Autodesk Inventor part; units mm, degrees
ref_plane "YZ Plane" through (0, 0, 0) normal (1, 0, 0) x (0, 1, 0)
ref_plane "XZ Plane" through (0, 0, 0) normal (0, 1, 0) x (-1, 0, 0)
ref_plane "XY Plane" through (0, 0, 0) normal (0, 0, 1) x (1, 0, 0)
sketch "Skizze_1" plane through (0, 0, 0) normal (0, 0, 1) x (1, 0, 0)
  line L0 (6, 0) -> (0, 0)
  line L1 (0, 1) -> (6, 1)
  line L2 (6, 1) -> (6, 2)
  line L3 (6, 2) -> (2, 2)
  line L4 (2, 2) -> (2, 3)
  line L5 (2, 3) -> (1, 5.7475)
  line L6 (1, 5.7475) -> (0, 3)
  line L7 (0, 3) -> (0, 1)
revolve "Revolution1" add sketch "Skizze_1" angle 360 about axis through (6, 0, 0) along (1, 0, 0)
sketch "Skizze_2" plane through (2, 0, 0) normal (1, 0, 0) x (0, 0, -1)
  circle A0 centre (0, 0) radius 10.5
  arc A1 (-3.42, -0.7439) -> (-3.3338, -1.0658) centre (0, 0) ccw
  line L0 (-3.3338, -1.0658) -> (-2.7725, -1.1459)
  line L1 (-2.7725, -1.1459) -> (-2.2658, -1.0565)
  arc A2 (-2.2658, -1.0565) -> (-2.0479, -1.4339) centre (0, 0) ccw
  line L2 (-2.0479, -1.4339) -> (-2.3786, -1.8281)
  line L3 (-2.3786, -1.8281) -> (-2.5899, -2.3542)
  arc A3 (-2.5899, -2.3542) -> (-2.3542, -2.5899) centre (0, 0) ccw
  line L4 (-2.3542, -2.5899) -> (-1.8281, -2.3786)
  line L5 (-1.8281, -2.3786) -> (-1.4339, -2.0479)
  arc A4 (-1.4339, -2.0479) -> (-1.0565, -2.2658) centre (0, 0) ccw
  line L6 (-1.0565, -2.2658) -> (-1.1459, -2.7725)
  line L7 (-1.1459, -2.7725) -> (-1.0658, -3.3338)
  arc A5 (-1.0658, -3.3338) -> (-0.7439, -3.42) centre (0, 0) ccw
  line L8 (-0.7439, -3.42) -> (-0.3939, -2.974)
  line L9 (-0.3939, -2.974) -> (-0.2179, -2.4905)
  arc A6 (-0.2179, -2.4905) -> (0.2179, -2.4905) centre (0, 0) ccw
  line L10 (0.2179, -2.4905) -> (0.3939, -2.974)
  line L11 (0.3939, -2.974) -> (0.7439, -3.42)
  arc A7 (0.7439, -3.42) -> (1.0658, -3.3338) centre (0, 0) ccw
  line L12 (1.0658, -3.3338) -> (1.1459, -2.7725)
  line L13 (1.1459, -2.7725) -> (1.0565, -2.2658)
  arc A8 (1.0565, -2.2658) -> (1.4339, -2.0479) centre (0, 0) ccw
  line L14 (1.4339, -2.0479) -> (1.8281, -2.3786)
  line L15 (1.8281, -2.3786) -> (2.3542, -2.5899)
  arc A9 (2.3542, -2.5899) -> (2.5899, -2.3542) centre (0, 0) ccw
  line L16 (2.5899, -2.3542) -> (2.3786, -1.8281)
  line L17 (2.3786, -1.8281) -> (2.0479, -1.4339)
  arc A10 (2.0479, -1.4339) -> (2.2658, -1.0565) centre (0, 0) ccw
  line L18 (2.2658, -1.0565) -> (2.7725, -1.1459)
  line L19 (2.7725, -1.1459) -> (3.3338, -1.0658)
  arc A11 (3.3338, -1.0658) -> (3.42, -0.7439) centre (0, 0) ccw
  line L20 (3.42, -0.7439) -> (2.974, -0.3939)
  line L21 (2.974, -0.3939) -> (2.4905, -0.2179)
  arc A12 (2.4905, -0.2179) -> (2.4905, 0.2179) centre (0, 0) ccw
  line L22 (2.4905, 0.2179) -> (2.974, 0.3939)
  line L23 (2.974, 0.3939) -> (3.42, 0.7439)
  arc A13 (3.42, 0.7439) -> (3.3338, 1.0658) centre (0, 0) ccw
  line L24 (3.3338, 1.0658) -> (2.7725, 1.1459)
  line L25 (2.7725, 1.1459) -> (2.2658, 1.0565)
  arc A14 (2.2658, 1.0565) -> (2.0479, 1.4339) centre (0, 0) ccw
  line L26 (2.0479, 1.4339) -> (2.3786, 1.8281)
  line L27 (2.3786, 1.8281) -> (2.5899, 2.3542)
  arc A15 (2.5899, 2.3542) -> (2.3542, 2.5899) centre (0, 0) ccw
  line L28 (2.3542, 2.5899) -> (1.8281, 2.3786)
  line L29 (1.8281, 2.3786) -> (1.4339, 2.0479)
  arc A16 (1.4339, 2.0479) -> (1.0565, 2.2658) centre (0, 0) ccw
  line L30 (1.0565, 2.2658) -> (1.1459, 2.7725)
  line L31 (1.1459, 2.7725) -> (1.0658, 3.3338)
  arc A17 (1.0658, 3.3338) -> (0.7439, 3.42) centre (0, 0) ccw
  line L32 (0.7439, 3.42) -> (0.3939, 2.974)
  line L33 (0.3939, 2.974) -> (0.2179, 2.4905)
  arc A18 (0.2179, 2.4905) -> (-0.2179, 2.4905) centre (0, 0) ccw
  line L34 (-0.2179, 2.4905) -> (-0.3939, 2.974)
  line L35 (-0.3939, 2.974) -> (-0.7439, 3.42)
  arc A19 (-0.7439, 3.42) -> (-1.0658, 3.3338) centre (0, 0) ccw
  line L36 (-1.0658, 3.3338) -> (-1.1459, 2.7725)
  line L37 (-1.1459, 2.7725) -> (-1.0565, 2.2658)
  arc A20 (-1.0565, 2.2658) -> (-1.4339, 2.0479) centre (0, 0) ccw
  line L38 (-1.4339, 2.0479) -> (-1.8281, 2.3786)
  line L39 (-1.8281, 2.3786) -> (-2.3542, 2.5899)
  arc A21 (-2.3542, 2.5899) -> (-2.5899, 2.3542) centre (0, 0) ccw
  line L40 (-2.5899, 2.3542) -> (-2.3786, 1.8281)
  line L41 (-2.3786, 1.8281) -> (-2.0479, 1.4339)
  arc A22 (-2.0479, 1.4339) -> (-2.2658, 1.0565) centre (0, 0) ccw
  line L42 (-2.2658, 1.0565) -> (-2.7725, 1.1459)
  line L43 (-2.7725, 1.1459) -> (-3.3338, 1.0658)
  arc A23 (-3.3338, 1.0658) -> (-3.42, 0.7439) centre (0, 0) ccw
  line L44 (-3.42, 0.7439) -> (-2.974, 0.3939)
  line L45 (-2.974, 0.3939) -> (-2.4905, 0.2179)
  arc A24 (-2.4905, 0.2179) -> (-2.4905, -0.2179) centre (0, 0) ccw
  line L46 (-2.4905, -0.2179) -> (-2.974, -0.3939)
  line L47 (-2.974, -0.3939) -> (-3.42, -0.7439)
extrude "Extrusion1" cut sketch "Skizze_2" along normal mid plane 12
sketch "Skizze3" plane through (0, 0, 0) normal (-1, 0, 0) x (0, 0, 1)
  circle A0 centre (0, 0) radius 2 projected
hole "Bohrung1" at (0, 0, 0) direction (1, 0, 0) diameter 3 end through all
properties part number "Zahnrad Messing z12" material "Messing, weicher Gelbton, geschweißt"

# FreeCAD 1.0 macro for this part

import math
import FreeCAD as App
import Part
import Sketcher
Q = App.Units.Quantity


def add_polygon(sketch, points):
    """Adds a closed chain of lines whose ends are joined by coincident constraints."""
    first, n = sketch.GeometryCount, len(points)
    for a, b in zip(points, points[1:] + points[:1]):
        sketch.addGeometry(Part.LineSegment(App.Vector(*a, 0), App.Vector(*b, 0)), False)
    for i in range(n):
        sketch.addConstraint(Sketcher.Constraint("Coincident", first + i, 2, first + (i + 1) % n, 1))

doc = App.newDocument("Part")
body = doc.addObject("PartDesign::Body", "Body")

# Sketch on XY plane
sketch1 = body.newObject("Sketcher::SketchObject", "Sketch")
sketch1.AttachmentSupport = (doc.getObject("XY_Plane"), [""])
sketch1.MapMode = "FlatFace"
add_polygon(sketch1, [(0, 3), (0, 1), (6, 1), (6, 2), (2, 2), (2, 3), (1, 5.7)])  # lines 0-6
sketch1.addConstraint([
    Sketcher.Constraint("Vertical", 0),
    Sketcher.Constraint("Horizontal", 1),
    Sketcher.Constraint("Vertical", 2),
    Sketcher.Constraint("Horizontal", 3),
    Sketcher.Constraint("Vertical", 4),
    Sketcher.Constraint("PointOnObject", 0, 2, -2),
    Sketcher.Constraint("Horizontal", 4, 2, 6, 2),
    Sketcher.Constraint("Equal", 2, 4),
    Sketcher.Constraint("Equal", 5, 6),
    Sketcher.Constraint("DistanceX", 1, 1, 1, 2, Q("6 mm")),
    Sketcher.Constraint("DistanceX", 3, 2, 3, 1, Q("4 mm")),
    Sketcher.Constraint("DistanceY", 0, 2, 0, 1, Q("2 mm")),
    Sketcher.Constraint("Angle", 5, Q("109.9998 deg")),
    Sketcher.Constraint("DistanceY", -1, 1, 0, 2, Q("1 mm")),
])
revolution = body.newObject("PartDesign::Revolution", "Revolution")
revolution.Profile = sketch1
revolution.ReferenceAxis = (sketch1, ["H_Axis"])
revolution.Angle = 360

# Sketch on YZ plane
sketch2 = body.newObject("Sketcher::SketchObject", "Sketch001")
sketch2.AttachmentSupport = (doc.getObject("YZ_Plane"), [""])
sketch2.MapMode = "FlatFace"
sketch2.AttachmentOffset = App.Placement(App.Vector(0, 0, 2), App.Rotation())
sketch2.addGeometry([
    Part.Circle(App.Vector(0, 0, 0), App.Vector(0, 0, 1), 10.5),  # 0
    Part.ArcOfCircle(Part.Circle(App.Vector(0.005456, -0.022492, 0), App.Vector(0, 0, 1), 3.523108), math.radians(102.280482), math.radians(107.701965)),  # 1
    Part.LineSegment(App.Vector(-0.7439, 3.42, 0), App.Vector(-0.3939, 2.974, 0)),  # 2
    Part.LineSegment(App.Vector(-0.3939, 2.974, 0), App.Vector(-0.2179, 2.4905, 0)),  # 3
    Part.ArcOfCircle(Part.Circle(App.Vector(0, 0, 0), App.Vector(0, 0, 1), 2.500014), math.radians(84.999783), math.radians(95.000217)),  # 4
    Part.LineSegment(App.Vector(0.2179, 2.4905, 0), App.Vector(0.3939, 2.974, 0)),  # 5
    Part.LineSegment(App.Vector(0.3939, 2.974, 0), App.Vector(0.7439, 3.42, 0)),  # 6
    Part.ArcOfCircle(Part.Circle(App.Vector(0.006436, 0.021918, 0), App.Vector(0, 0, 1), 3.477185), math.radians(72.262207), math.radians(77.755345)),  # 7
    Part.LineSegment(App.Vector(1.0658, 3.3338, 0), App.Vector(1.1459, 2.7725, 0)),  # 8
    Part.LineSegment(App.Vector(1.1459, 2.7725, 0), App.Vector(1.0565, 2.2658, 0)),  # 9
    Part.ArcOfCircle(Part.Circle(App.Vector(-0.001107, -0.001738, 0), App.Vector(0, 0, 1), 2.502051), math.radians(55.003091), math.radians(64.995085)),  # 10
    Part.LineSegment(App.Vector(1.4339, 2.0479, 0), App.Vector(1.8281, 2.3786, 0)),  # 11
    Part.LineSegment(App.Vector(1.8281, 2.3786, 0), App.Vector(2.3542, 2.5899, 0)),  # 12
    Part.ArcOfCircle(Part.Circle(App.Vector(0, 0, 0), App.Vector(0, 0, 1), 3.499977), math.radians(42.270606), math.radians(47.729394)),  # 13
    Part.LineSegment(App.Vector(2.5899, 2.3542, 0), App.Vector(2.3786, 1.8281, 0)),  # 14
    Part.LineSegment(App.Vector(2.3786, 1.8281, 0), App.Vector(2.0479, 1.4339, 0)),  # 15
    Part.ArcOfCircle(Part.Circle(App.Vector(0.001825, 0.00095, 0), App.Vector(0, 0, 1), 2.497953), math.radians(24.996698), math.radians(35.005126)),  # 16
    Part.LineSegment(App.Vector(2.2658, 1.0565, 0), App.Vector(2.7725, 1.1459, 0)),  # 17
    Part.LineSegment(App.Vector(2.7725, 1.1459, 0), App.Vector(3.3338, 1.0658, 0)),  # 18
    Part.ArcOfCircle(Part.Circle(App.Vector(-0.022492, -0.005456, 0), App.Vector(0, 0, 1), 3.523108), math.radians(12.280482), math.radians(17.701965)),  # 19
    Part.LineSegment(App.Vector(3.42, 0.7439, 0), App.Vector(2.974, 0.3939, 0)),  # 20
    Part.LineSegment(App.Vector(2.974, 0.3939, 0), App.Vector(2.4905, 0.2179, 0)),  # 21
    Part.ArcOfCircle(Part.Circle(App.Vector(0, 0, 0), App.Vector(0, 0, 1), 2.500014), math.radians(-5.000217), math.radians(5.000217)),  # 22
    Part.LineSegment(App.Vector(2.4905, -0.2179, 0), App.Vector(2.974, -0.3939, 0)),  # 23
    Part.LineSegment(App.Vector(2.974, -0.3939, 0), App.Vector(3.42, -0.7439, 0)),  # 24
    Part.ArcOfCircle(Part.Circle(App.Vector(0.021918, -0.006436, 0), App.Vector(0, 0, 1), 3.477185), math.radians(-17.737793), math.radians(-12.244655)),  # 25
    Part.LineSegment(App.Vector(3.3338, -1.0658, 0), App.Vector(2.7725, -1.1459, 0)),  # 26
    Part.LineSegment(App.Vector(2.7725, -1.1459, 0), App.Vector(2.2658, -1.0565, 0)),  # 27
    Part.ArcOfCircle(Part.Circle(App.Vector(-0.001738, 0.001107, 0), App.Vector(0, 0, 1), 2.502051), math.radians(-34.996909), math.radians(-25.004915)),  # 28
    Part.LineSegment(App.Vector(2.0479, -1.4339, 0), App.Vector(2.3786, -1.8281, 0)),  # 29
    Part.LineSegment(App.Vector(2.3786, -1.8281, 0), App.Vector(2.5899, -2.3542, 0)),  # 30
    Part.ArcOfCircle(Part.Circle(App.Vector(0, 0, 0), App.Vector(0, 0, 1), 3.499977), math.radians(-47.729394), math.radians(-42.270606)),  # 31
    Part.LineSegment(App.Vector(2.3542, -2.5899, 0), App.Vector(1.8281, -2.3786, 0)),  # 32
    Part.LineSegment(App.Vector(1.8281, -2.3786, 0), App.Vector(1.4339, -2.0479, 0)),  # 33
    Part.ArcOfCircle(Part.Circle(App.Vector(0.00095, -0.001825, 0), App.Vector(0, 0, 1), 2.497953), math.radians(-65.003302), math.radians(-54.994874)),  # 34
    Part.LineSegment(App.Vector(1.0565, -2.2658, 0), App.Vector(1.1459, -2.7725, 0)),  # 35
    Part.LineSegment(App.Vector(1.1459, -2.7725, 0), App.Vector(1.0658, -3.3338, 0)),  # 36
    Part.ArcOfCircle(Part.Circle(App.Vector(-0.005456, 0.022492, 0), App.Vector(0, 0, 1), 3.523108), math.radians(-77.719518), math.radians(-72.298035)),  # 37
    Part.LineSegment(App.Vector(0.7439, -3.42, 0), App.Vector(0.3939, -2.974, 0)),  # 38
    Part.LineSegment(App.Vector(0.3939, -2.974, 0), App.Vector(0.2179, -2.4905, 0)),  # 39
    Part.ArcOfCircle(Part.Circle(App.Vector(0, 0, 0), App.Vector(0, 0, 1), 2.500014), math.radians(-95.000217), math.radians(-84.999783)),  # 40
    Part.LineSegment(App.Vector(-0.2179, -2.4905, 0), App.Vector(-0.3939, -2.974, 0)),  # 41
    Part.LineSegment(App.Vector(-0.3939, -2.974, 0), App.Vector(-0.7439, -3.42, 0)),  # 42
    Part.ArcOfCircle(Part.Circle(App.Vector(-0.006436, -0.021918, 0), App.Vector(0, 0, 1), 3.477185), math.radians(-107.737793), math.radians(-102.244655)),  # 43
    Part.LineSegment(App.Vector(-1.0658, -3.3338, 0), App.Vector(-1.1459, -2.7725, 0)),  # 44
    Part.LineSegment(App.Vector(-1.1459, -2.7725, 0), App.Vector(-1.0565, -2.2658, 0)),  # 45
    Part.ArcOfCircle(Part.Circle(App.Vector(0.001107, 0.001738, 0), App.Vector(0, 0, 1), 2.502051), math.radians(-124.996909), math.radians(-115.004915)),  # 46
    Part.LineSegment(App.Vector(-1.4339, -2.0479, 0), App.Vector(-1.8281, -2.3786, 0)),  # 47
    Part.LineSegment(App.Vector(-1.8281, -2.3786, 0), App.Vector(-2.3542, -2.5899, 0)),  # 48
    Part.ArcOfCircle(Part.Circle(App.Vector(0, 0, 0), App.Vector(0, 0, 1), 3.499977), math.radians(-137.729394), math.radians(-132.270606)),  # 49
    Part.LineSegment(App.Vector(-2.5899, -2.3542, 0), App.Vector(-2.3786, -1.8281, 0)),  # 50
    Part.LineSegment(App.Vector(-2.3786, -1.8281, 0), App.Vector(-2.0479, -1.4339, 0)),  # 51
    Part.ArcOfCircle(Part.Circle(App.Vector(-0.001825, -0.00095, 0), App.Vector(0, 0, 1), 2.497953), math.radians(-155.003302), math.radians(-144.994874)),  # 52
    Part.LineSegment(App.Vector(-2.2658, -1.0565, 0), App.Vector(-2.7725, -1.1459, 0)),  # 53
    Part.LineSegment(App.Vector(-2.7725, -1.1459, 0), App.Vector(-3.3338, -1.0658, 0)),  # 54
    Part.ArcOfCircle(Part.Circle(App.Vector(0.022492, 0.005456, 0), App.Vector(0, 0, 1), 3.523108), math.radians(-167.719518), math.radians(-162.298035)),  # 55
    Part.LineSegment(App.Vector(-3.42, -0.7439, 0), App.Vector(-2.974, -0.3939, 0)),  # 56
    Part.LineSegment(App.Vector(-2.974, -0.3939, 0), App.Vector(-2.4905, -0.2179, 0)),  # 57
    Part.ArcOfCircle(Part.Circle(App.Vector(0, 0, 0), App.Vector(0, 0, 1), 2.500014), math.radians(174.999783), math.radians(185.000217)),  # 58
    Part.LineSegment(App.Vector(-2.4905, 0.2179, 0), App.Vector(-2.974, 0.3939, 0)),  # 59
    Part.LineSegment(App.Vector(-2.974, 0.3939, 0), App.Vector(-3.42, 0.7439, 0)),  # 60
    Part.ArcOfCircle(Part.Circle(App.Vector(-0.021918, 0.006436, 0), App.Vector(0, 0, 1), 3.477185), math.radians(162.262207), math.radians(167.755345)),  # 61
    Part.LineSegment(App.Vector(-3.3338, 1.0658, 0), App.Vector(-2.7725, 1.1459, 0)),  # 62
    Part.LineSegment(App.Vector(-2.7725, 1.1459, 0), App.Vector(-2.2658, 1.0565, 0)),  # 63
    Part.ArcOfCircle(Part.Circle(App.Vector(0.001738, -0.001107, 0), App.Vector(0, 0, 1), 2.502051), math.radians(145.003091), math.radians(154.995085)),  # 64
    Part.LineSegment(App.Vector(-2.0479, 1.4339, 0), App.Vector(-2.3786, 1.8281, 0)),  # 65
    Part.LineSegment(App.Vector(-2.3786, 1.8281, 0), App.Vector(-2.5899, 2.3542, 0)),  # 66
    Part.ArcOfCircle(Part.Circle(App.Vector(0, 0, 0), App.Vector(0, 0, 1), 3.499977), math.radians(132.270606), math.radians(137.729394)),  # 67
    Part.LineSegment(App.Vector(-2.3542, 2.5899, 0), App.Vector(-1.8281, 2.3786, 0)),  # 68
    Part.LineSegment(App.Vector(-1.8281, 2.3786, 0), App.Vector(-1.4339, 2.0479, 0)),  # 69
    Part.ArcOfCircle(Part.Circle(App.Vector(-0.00095, 0.001825, 0), App.Vector(0, 0, 1), 2.497953), math.radians(114.996698), math.radians(125.005126)),  # 70
    Part.LineSegment(App.Vector(-1.0565, 2.2658, 0), App.Vector(-1.1459, 2.7725, 0)),  # 71
    Part.LineSegment(App.Vector(-1.1459, 2.7725, 0), App.Vector(-1.0658, 3.3338, 0)),  # 72
], False)
sketch2.addConstraint([
    Sketcher.Constraint("Coincident", 1, 1, 2, 1),
    Sketcher.Constraint("Coincident", 2, 2, 3, 1),
    Sketcher.Constraint("Coincident", 3, 2, 4, 2),
    Sketcher.Constraint("Coincident", 4, 1, 5, 1),
    Sketcher.Constraint("Coincident", 5, 2, 6, 1),
    Sketcher.Constraint("Coincident", 6, 2, 7, 2),
    Sketcher.Constraint("Coincident", 7, 1, 8, 1),
    Sketcher.Constraint("Coincident", 8, 2, 9, 1),
    Sketcher.Constraint("Coincident", 9, 2, 10, 2),
    Sketcher.Constraint("Coincident", 10, 1, 11, 1),
    Sketcher.Constraint("Coincident", 11, 2, 12, 1),
    Sketcher.Constraint("Coincident", 12, 2, 13, 2),
    Sketcher.Constraint("Coincident", 13, 1, 14, 1),
    Sketcher.Constraint("Coincident", 14, 2, 15, 1),
    Sketcher.Constraint("Coincident", 15, 2, 16, 2),
    Sketcher.Constraint("Coincident", 16, 1, 17, 1),
    Sketcher.Constraint("Coincident", 17, 2, 18, 1),
    Sketcher.Constraint("Coincident", 18, 2, 19, 2),
    Sketcher.Constraint("Coincident", 19, 1, 20, 1),
    Sketcher.Constraint("Coincident", 20, 2, 21, 1),
    Sketcher.Constraint("Coincident", 21, 2, 22, 2),
    Sketcher.Constraint("Coincident", 22, 1, 23, 1),
    Sketcher.Constraint("Coincident", 23, 2, 24, 1),
    Sketcher.Constraint("Coincident", 24, 2, 25, 2),
    Sketcher.Constraint("Coincident", 25, 1, 26, 1),
    Sketcher.Constraint("Coincident", 26, 2, 27, 1),
    Sketcher.Constraint("Coincident", 27, 2, 28, 2),
    Sketcher.Constraint("Coincident", 28, 1, 29, 1),
    Sketcher.Constraint("Coincident", 29, 2, 30, 1),
    Sketcher.Constraint("Coincident", 30, 2, 31, 2),
    Sketcher.Constraint("Coincident", 31, 1, 32, 1),
    Sketcher.Constraint("Coincident", 32, 2, 33, 1),
    Sketcher.Constraint("Coincident", 33, 2, 34, 2),
    Sketcher.Constraint("Coincident", 34, 1, 35, 1),
    Sketcher.Constraint("Coincident", 35, 2, 36, 1),
    Sketcher.Constraint("Coincident", 36, 2, 37, 2),
    Sketcher.Constraint("Coincident", 37, 1, 38, 1),
    Sketcher.Constraint("Coincident", 38, 2, 39, 1),
    Sketcher.Constraint("Coincident", 39, 2, 40, 2),
    Sketcher.Constraint("Coincident", 40, 1, 41, 1),
    Sketcher.Constraint("Coincident", 41, 2, 42, 1),
    Sketcher.Constraint("Coincident", 42, 2, 43, 2),
    Sketcher.Constraint("Coincident", 43, 1, 44, 1),
    Sketcher.Constraint("Coincident", 44, 2, 45, 1),
    Sketcher.Constraint("Coincident", 45, 2, 46, 2),
    Sketcher.Constraint("Coincident", 46, 1, 47, 1),
    Sketcher.Constraint("Coincident", 47, 2, 48, 1),
    Sketcher.Constraint("Coincident", 48, 2, 49, 2),
    Sketcher.Constraint("Coincident", 49, 1, 50, 1),
    Sketcher.Constraint("Coincident", 50, 2, 51, 1),
    Sketcher.Constraint("Coincident", 51, 2, 52, 2),
    Sketcher.Constraint("Coincident", 52, 1, 53, 1),
    Sketcher.Constraint("Coincident", 53, 2, 54, 1),
    Sketcher.Constraint("Coincident", 54, 2, 55, 2),
    Sketcher.Constraint("Coincident", 55, 1, 56, 1),
    Sketcher.Constraint("Coincident", 56, 2, 57, 1),
    Sketcher.Constraint("Coincident", 57, 2, 58, 2),
    Sketcher.Constraint("Coincident", 58, 1, 59, 1),
    Sketcher.Constraint("Coincident", 59, 2, 60, 1),
    Sketcher.Constraint("Coincident", 60, 2, 61, 2),
    Sketcher.Constraint("Coincident", 61, 1, 62, 1),
    Sketcher.Constraint("Coincident", 62, 2, 63, 1),
    Sketcher.Constraint("Coincident", 63, 2, 64, 2),
    Sketcher.Constraint("Coincident", 64, 1, 65, 1),
    Sketcher.Constraint("Coincident", 65, 2, 66, 1),
    Sketcher.Constraint("Coincident", 66, 2, 67, 2),
    Sketcher.Constraint("Coincident", 67, 1, 68, 1),
    Sketcher.Constraint("Coincident", 68, 2, 69, 1),
    Sketcher.Constraint("Coincident", 69, 2, 70, 2),
    Sketcher.Constraint("Coincident", 70, 1, 71, 1),
    Sketcher.Constraint("Coincident", 71, 2, 72, 1),
    Sketcher.Constraint("Coincident", 72, 2, 1, 2),
    Sketcher.Constraint("Coincident", 0, 3, -1, 1),
    Sketcher.Constraint("Coincident", 4, 3, -1, 1),
    Sketcher.Constraint("Coincident", 13, 3, -1, 1),
    Sketcher.Constraint("Coincident", 22, 3, -1, 1),
    Sketcher.Constraint("Coincident", 31, 3, -1, 1),
    Sketcher.Constraint("Coincident", 40, 3, -1, 1),
    Sketcher.Constraint("Coincident", 49, 3, -1, 1),
    Sketcher.Constraint("Coincident", 58, 3, -1, 1),
    Sketcher.Constraint("Coincident", 67, 3, -1, 1),
    Sketcher.Constraint("Equal", 1, 19),
    Sketcher.Constraint("Equal", 4, 22),
    Sketcher.Constraint("Equal", 7, 25),
    Sketcher.Constraint("Equal", 10, 28),
    Sketcher.Constraint("Equal", 13, 31),
    Sketcher.Constraint("Equal", 16, 34),
    Sketcher.Constraint("Equal", 19, 37),
    Sketcher.Constraint("Equal", 22, 40),
    Sketcher.Constraint("Equal", 25, 43),
    Sketcher.Constraint("Equal", 28, 46),
    Sketcher.Constraint("Equal", 31, 49),
    Sketcher.Constraint("Equal", 34, 52),
    Sketcher.Constraint("Equal", 37, 55),
    Sketcher.Constraint("Equal", 40, 58),
    Sketcher.Constraint("Equal", 43, 61),
    Sketcher.Constraint("Equal", 46, 64),
    Sketcher.Constraint("Equal", 49, 67),
    Sketcher.Constraint("Equal", 52, 70),
    Sketcher.Constraint("Symmetric", 1, 3, 37, 3, -1, 1),
    Sketcher.Constraint("Symmetric", 7, 3, 43, 3, -1, 1),
    Sketcher.Constraint("Symmetric", 10, 3, 46, 3, -1, 1),
    Sketcher.Constraint("Symmetric", 16, 3, 52, 3, -1, 1),
    Sketcher.Constraint("Symmetric", 19, 3, 55, 3, -1, 1),
    Sketcher.Constraint("Symmetric", 25, 3, 61, 3, -1, 1),
    Sketcher.Constraint("Symmetric", 28, 3, 64, 3, -1, 1),
    Sketcher.Constraint("Symmetric", 34, 3, 70, 3, -1, 1),
    Sketcher.Constraint("Symmetric", 2, 2, 38, 2, -1, 1),
    Sketcher.Constraint("Symmetric", 5, 2, 41, 2, -1, 1),
    Sketcher.Constraint("Symmetric", 8, 2, 44, 2, -1, 1),
    Sketcher.Constraint("Symmetric", 11, 2, 47, 2, -1, 1),
    Sketcher.Constraint("Symmetric", 14, 2, 50, 2, -1, 1),
    Sketcher.Constraint("Symmetric", 17, 2, 53, 2, -1, 1),
    Sketcher.Constraint("Symmetric", 20, 2, 56, 2, -1, 1),
    Sketcher.Constraint("Symmetric", 23, 2, 59, 2, -1, 1),
    Sketcher.Constraint("Symmetric", 26, 2, 62, 2, -1, 1),
    Sketcher.Constraint("Symmetric", 29, 2, 65, 2, -1, 1),
    Sketcher.Constraint("Symmetric", 32, 2, 68, 2, -1, 1),
    Sketcher.Constraint("Symmetric", 35, 2, 71, 2, -1, 1),
    Sketcher.Constraint("Symmetric", 16, 3, 28, 3, -2),
    Sketcher.Constraint("Symmetric", 10, 3, 34, 3, -2),
    Sketcher.Constraint("Symmetric", 2, 2, 5, 2, -2),
    Sketcher.Constraint("Symmetric", 1, 1, 6, 2, -2),
    Sketcher.Constraint("Symmetric", 36, 2, 43, 1, -2),
    Sketcher.Constraint("Symmetric", 35, 2, 44, 2, -2),
    Sketcher.Constraint("Symmetric", 34, 1, 45, 2, -2),
    Sketcher.Constraint("Symmetric", 33, 2, 46, 1, -2),
    Sketcher.Constraint("Symmetric", 32, 2, 47, 2, -2),
    Sketcher.Constraint("Symmetric", 29, 2, 50, 2, -2),
    Sketcher.Constraint("Symmetric", 28, 1, 51, 2, -2),
    Sketcher.Constraint("Symmetric", 27, 2, 52, 1, -2),
    Sketcher.Constraint("Symmetric", 26, 2, 53, 2, -2),
    Sketcher.Constraint("Symmetric", 25, 1, 54, 2, -2),
    Sketcher.Constraint("Symmetric", 24, 2, 55, 1, -2),
    Sketcher.Constraint("Symmetric", 23, 2, 56, 2, -2),
    Sketcher.Constraint("Perpendicular", 2, 20),
    Sketcher.Constraint("Perpendicular", 3, 21),
    Sketcher.Constraint("Perpendicular", 5, 23),
    Sketcher.Constraint("Perpendicular", 6, 24),
    Sketcher.Constraint("Perpendicular", 8, 26),
    Sketcher.Constraint("Perpendicular", 9, 27),
    Sketcher.Constraint("Perpendicular", 11, 29),
    Sketcher.Constraint("Perpendicular", 12, 30),
    Sketcher.Constraint("Perpendicular", 14, 32),
    Sketcher.Constraint("Perpendicular", 15, 33),
    Sketcher.Constraint("Perpendicular", 17, 35),
    Sketcher.Constraint("Perpendicular", 18, 36),
    Sketcher.Constraint("Perpendicular", 20, 38),
    Sketcher.Constraint("Perpendicular", 21, 39),
    Sketcher.Constraint("Perpendicular", 23, 41),
    Sketcher.Constraint("Perpendicular", 24, 42),
    Sketcher.Constraint("Perpendicular", 26, 44),
    Sketcher.Constraint("Perpendicular", 27, 45),
    Sketcher.Constraint("Perpendicular", 29, 47),
    Sketcher.Constraint("Perpendicular", 30, 48),
    Sketcher.Constraint("Perpendicular", 32, 50),
    Sketcher.Constraint("Perpendicular", 39, 57),
    Sketcher.Constraint("Perpendicular", 41, 59),
    Sketcher.Constraint("Perpendicular", 42, 60),
    Sketcher.Constraint("Perpendicular", 44, 62),
    Sketcher.Constraint("Perpendicular", 45, 63),
    Sketcher.Constraint("Perpendicular", 47, 65),
    Sketcher.Constraint("Perpendicular", 48, 66),
    Sketcher.Constraint("Perpendicular", 50, 68),
    Sketcher.Constraint("Perpendicular", 51, 69),
    Sketcher.Constraint("Perpendicular", 53, 71),
    Sketcher.Constraint("Perpendicular", 54, 72),
    Sketcher.Constraint("Horizontal", 3, 2, 4, 1),
    Sketcher.Constraint("Horizontal", 31, 1, 48, 2),
    Sketcher.Constraint("Equal", 6, 8),
    Sketcher.Constraint("Equal", 5, 9),
    Sketcher.Constraint("Equal", 9, 11),
    Sketcher.Constraint("Equal", 8, 12),
    Sketcher.Constraint("Equal", 12, 14),
    Sketcher.Constraint("Equal", 11, 15),
    Sketcher.Constraint("Equal", 15, 17),
    Sketcher.Constraint("Equal", 14, 18),
    Sketcher.Constraint("Equal", 18, 20),
    Sketcher.Constraint("Equal", 17, 21),
    Sketcher.Constraint("Diameter", 0, Q("21 mm")),
    Sketcher.Constraint("Radius", 4, Q("2.5 mm")),
    Sketcher.Constraint("Radius", 13, Q("3.5 mm")),
    Sketcher.Constraint("Radius", 1, Q("3.523 mm")),
    Sketcher.Constraint("Radius", 10, Q("2.502 mm")),
    Sketcher.Constraint("Radius", 16, Q("2.498 mm")),
    Sketcher.Constraint("Radius", 7, Q("3.4772 mm")),
    Sketcher.Constraint("DistanceY", -1, 1, 1, 1, Q("3.42 mm")),
    Sketcher.Constraint("DistanceY", -1, 1, 12, 2, Q("2.59 mm")),
    Sketcher.Constraint("DistanceX", -1, 1, 19, 1, Q("3.42 mm")),
    Sketcher.Constraint("Distance", 2, Q("0.567 mm")),
    Sketcher.Constraint("DistanceY", -1, 1, 7, 3, Q("0.022 mm")),
    Sketcher.Constraint("DistanceX", -1, 1, 25, 3, Q("0.022 mm")),
    Sketcher.Constraint("DistanceX", 1, 1, -1, 1, Q("0.744 mm")),
    Sketcher.Constraint("DistanceX", 2, 2, -1, 1, Q("0.394 mm")),
    Sketcher.Constraint("DistanceX", 3, 2, -1, 1, Q("0.218 mm")),
    Sketcher.Constraint("DistanceX", -1, 1, 8, 2, Q("1.146 mm")),
    Sketcher.Constraint("DistanceX", -1, 1, 10, 1, Q("1.434 mm")),
    Sketcher.Constraint("DistanceX", -1, 1, 7, 1, Q("1.0658 mm")),
])
pocket1 = body.newObject("PartDesign::Pocket", "Pocket")
pocket1.Profile = sketch2
pocket1.Length = 12
pocket1.Midplane = True

# Sketch on YZ plane
sketch3 = body.newObject("Sketcher::SketchObject", "Sketch002")
sketch3.AttachmentSupport = (doc.getObject("YZ_Plane"), [""])
sketch3.MapMode = "FlatFace"
sketch3.addGeometry(Part.Circle(App.Vector(0, 0, 0), App.Vector(0, 0, 1), 1.5), False)
sketch3.addConstraint([
    Sketcher.Constraint("Coincident", 0, 3, -1, 1),
    Sketcher.Constraint("Diameter", 0, Q("3 mm")),
])
doc.recompute()
hole = body.newObject("PartDesign::Hole", "Hole")
hole.Profile = sketch3
hole.ThreadType = "None"
hole.Diameter = 3
hole.DepthType = "ThroughAll"
hole.Reversed = True

doc.recompute()
